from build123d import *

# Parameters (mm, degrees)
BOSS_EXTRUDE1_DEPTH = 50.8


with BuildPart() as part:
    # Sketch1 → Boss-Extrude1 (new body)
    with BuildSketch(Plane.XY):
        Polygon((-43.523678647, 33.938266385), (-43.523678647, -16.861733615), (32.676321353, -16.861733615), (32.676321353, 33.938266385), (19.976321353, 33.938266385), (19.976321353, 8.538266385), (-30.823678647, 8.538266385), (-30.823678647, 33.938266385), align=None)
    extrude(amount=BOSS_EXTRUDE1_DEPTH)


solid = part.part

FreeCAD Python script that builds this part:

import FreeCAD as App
import Part
import Sketcher
from FreeCAD import Vector
Q = App.Units.Quantity

doc = App.newDocument("Part")
body = doc.addObject("PartDesign::Body", "Body")

# Sketch on XY plane
sketch1 = body.newObject("Sketcher::SketchObject", "Sketch")
sketch1.AttachmentSupport = (doc.getObject("XY_Plane"), [""])
sketch1.MapMode = "FlatFace"
sketch1.addGeometry([
    Part.LineSegment(Vector(-44, 34, 0), Vector(-44, -17, 0)),  # 0
    Part.LineSegment(Vector(-44, -17, 0), Vector(33, -17, 0)),  # 1
    Part.LineSegment(Vector(33, -17, 0), Vector(33, 34, 0)),  # 2
    Part.LineSegment(Vector(33, 34, 0), Vector(20, 34, 0)),  # 3
    Part.LineSegment(Vector(20, 34, 0), Vector(20, 9, 0)),  # 4
    Part.LineSegment(Vector(20, 9, 0), Vector(-31, 9, 0)),  # 5
    Part.LineSegment(Vector(-31, 9, 0), Vector(-31, 34, 0)),  # 6
    Part.LineSegment(Vector(-31, 34, 0), Vector(-44, 34, 0)),  # 7
], False)
sketch1.addConstraint([
    Sketcher.Constraint("Coincident", 0, 2, 1, 1),
    Sketcher.Constraint("Coincident", 1, 2, 2, 1),
    Sketcher.Constraint("Coincident", 2, 2, 3, 1),
    Sketcher.Constraint("Coincident", 3, 2, 4, 1),
    Sketcher.Constraint("Coincident", 4, 2, 5, 1),
    Sketcher.Constraint("Coincident", 5, 2, 6, 1),
    Sketcher.Constraint("Coincident", 6, 2, 7, 1),
    Sketcher.Constraint("Coincident", 7, 2, 0, 1),
    Sketcher.Constraint("Vertical", 0),
    Sketcher.Constraint("Horizontal", 1),
    Sketcher.Constraint("Vertical", 2),
    Sketcher.Constraint("Horizontal", 3),
    Sketcher.Constraint("Vertical", 4),
    Sketcher.Constraint("Horizontal", 5),
    Sketcher.Constraint("Vertical", 6),
    Sketcher.Constraint("Horizontal", 7),
    Sketcher.Constraint("Horizontal", 3, 2, 6, 2),
    Sketcher.Constraint("Equal", 3, 7),
    Sketcher.Constraint("Equal", 5, 0),
    Sketcher.Constraint("DistanceX", 1, 1, 1, 2, Q("3 in")),
    Sketcher.Constraint("DistanceX", 5, 2, 5, 1, Q("2 in")),
    Sketcher.Constraint("DistanceY", 4, 2, 4, 1, Q("1 in")),
    Sketcher.Constraint("DistanceX", 0, 2, -1, 1, Q("43.523679 mm")),
    Sketcher.Constraint("DistanceY", 0, 2, -1, 1, Q("16.861734 mm")),
])
pad1 = body.newObject("PartDesign::Pad", "Pad")
pad1.Profile = sketch1
pad1.Length = Q("2 in")

doc.recompute()
